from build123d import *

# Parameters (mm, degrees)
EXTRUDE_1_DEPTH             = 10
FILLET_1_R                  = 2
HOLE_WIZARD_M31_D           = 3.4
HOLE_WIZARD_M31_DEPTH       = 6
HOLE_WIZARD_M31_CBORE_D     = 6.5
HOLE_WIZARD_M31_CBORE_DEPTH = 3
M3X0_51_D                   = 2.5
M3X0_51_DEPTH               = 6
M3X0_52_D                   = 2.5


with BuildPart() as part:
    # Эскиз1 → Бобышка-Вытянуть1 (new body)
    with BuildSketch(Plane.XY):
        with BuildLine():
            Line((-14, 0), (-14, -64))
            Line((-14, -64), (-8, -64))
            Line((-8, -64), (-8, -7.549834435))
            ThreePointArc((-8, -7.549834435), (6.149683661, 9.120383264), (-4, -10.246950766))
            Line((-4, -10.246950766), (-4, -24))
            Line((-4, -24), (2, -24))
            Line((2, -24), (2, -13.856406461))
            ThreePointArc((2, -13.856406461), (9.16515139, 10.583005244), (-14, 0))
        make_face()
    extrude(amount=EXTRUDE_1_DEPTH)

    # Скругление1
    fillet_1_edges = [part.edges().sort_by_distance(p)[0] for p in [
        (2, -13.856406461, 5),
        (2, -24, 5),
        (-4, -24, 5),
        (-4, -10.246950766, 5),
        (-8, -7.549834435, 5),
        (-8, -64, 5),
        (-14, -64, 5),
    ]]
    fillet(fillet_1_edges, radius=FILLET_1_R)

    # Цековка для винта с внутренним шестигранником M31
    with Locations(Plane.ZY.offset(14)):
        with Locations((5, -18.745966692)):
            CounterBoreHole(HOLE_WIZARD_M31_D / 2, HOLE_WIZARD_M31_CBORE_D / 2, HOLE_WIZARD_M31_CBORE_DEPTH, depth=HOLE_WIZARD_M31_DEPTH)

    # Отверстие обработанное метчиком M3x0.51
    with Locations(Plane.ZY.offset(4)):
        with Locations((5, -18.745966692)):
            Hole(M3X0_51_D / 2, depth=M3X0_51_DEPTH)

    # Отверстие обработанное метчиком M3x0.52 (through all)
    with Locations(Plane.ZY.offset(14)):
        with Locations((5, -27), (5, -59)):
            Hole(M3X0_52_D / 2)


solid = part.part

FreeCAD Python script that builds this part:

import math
import FreeCAD as App
import Part
import Sketcher
from FreeCAD import Vector


def edges_at(feature, points):
    """Names of the edges that pass closest to the given points."""
    edges = feature.Shape.Edges
    near = lambda p: min(range(len(edges)), key=lambda i: edges[i].distToShape(Part.Vertex(*p))[0])
    return sorted({f"Edge{near(p) + 1}" for p in points})

doc = App.newDocument("Part")
params = doc.addObject("Spreadsheet::Sheet", "Params")
for row, (alias, value) in enumerate([
    ("sketch1_radius", "11 mm"),
    ("sketch1_radius2", "14 mm"),
    ("sketch1_width", "6 mm"),
    ("sketch1_height", "64 mm"),
    ("pad1_length", "10 mm"),
    ("fillet_radius", "2 mm"),
    ("sketch2_diameter", "3.4 mm"),
    ("hole_diameter", "3.4 mm"),
    ("hole_depth", "6 mm"),
    ("hole_cbore_diameter", "6.5 mm"),
    ("hole_cbore_depth", "3 mm"),
    ("sketch3_diameter", "2.5 mm"),
    ("hole2_diameter", "2.5 mm"),
    ("hole2_depth", "6 mm"),
    ("sketch4_diameter", "2.5 mm"),
    ("hole3_diameter", "2.5 mm"),
], start=1):
    params.set(f"A{row}", alias)
    params.set(f"B{row}", "=" + value)
    params.setAlias(f"B{row}", alias)

body = doc.addObject("PartDesign::Body", "Body")

# Sketch on XY plane
sketch1 = body.newObject("Sketcher::SketchObject", "Sketch")
sketch1.AttachmentSupport = (doc.getObject("XY_Plane"), [""])
sketch1.MapMode = "FlatFace"
sketch1.addGeometry([
    Part.LineSegment(Vector(-14, 0, 0), Vector(-14, -64, 0)),  # 0
    Part.LineSegment(Vector(-14, -64, 0), Vector(-8, -64, 0)),  # 1
    Part.LineSegment(Vector(-8, -64, 0), Vector(-8, -7.5, 0)),  # 2
    Part.ArcOfCircle(Part.Circle(Vector(0, 0, 0), Vector(0, 0, 1), 11), math.radians(-111), math.radians(223)),  # 3
    Part.LineSegment(Vector(-4, -10.2, 0), Vector(-4, -24, 0)),  # 4
    Part.LineSegment(Vector(-4, -24, 0), Vector(2, -24, 0)),  # 5
    Part.LineSegment(Vector(2, -24, 0), Vector(2, -13.9, 0)),  # 6
    Part.ArcOfCircle(Part.Circle(Vector(0, 0, 0), Vector(0, 0, 1), 14), math.radians(-82), math.radians(180)),  # 7
], False)
sketch1.addConstraint([
    Sketcher.Constraint("Coincident", 0, 2, 1, 1),
    Sketcher.Constraint("Coincident", 1, 2, 2, 1),
    Sketcher.Constraint("Coincident", 2, 2, 3, 2),
    Sketcher.Constraint("Coincident", 3, 1, 4, 1),
    Sketcher.Constraint("Coincident", 4, 2, 5, 1),
    Sketcher.Constraint("Coincident", 5, 2, 6, 1),
    Sketcher.Constraint("Coincident", 6, 2, 7, 1),
    Sketcher.Constraint("Tangent", 7, 2, 0, 1),
    Sketcher.Constraint("Vertical", 0),
    Sketcher.Constraint("Horizontal", 1),
    Sketcher.Constraint("Vertical", 2),
    Sketcher.Constraint("Vertical", 4),
    Sketcher.Constraint("Horizontal", 5),
    Sketcher.Constraint("Vertical", 6),
    Sketcher.Constraint("Coincident", 3, 3, -1, 1),
    Sketcher.Constraint("Coincident", 7, 3, -1, 1),
    Sketcher.Constraint("Equal", 1, 5),
    Sketcher.Constraint("Radius", 3, 11.0),
    Sketcher.Constraint("Radius", 7, 14.0),
    Sketcher.Constraint("DistanceX", 1, 1, 1, 2, 6.0),
    Sketcher.Constraint("DistanceY", 0, 2, 0, 1, 64.0),
    Sketcher.Constraint("DistanceX", 3, 1, -1, 1, 4.0),
    Sketcher.Constraint("DistanceY", 4, 2, -1, 1, 24.0),
])
sketch1.setExpression("Constraints[17]", "Params.sketch1_radius")
sketch1.setExpression("Constraints[18]", "Params.sketch1_radius2")
sketch1.setExpression("Constraints[19]", "Params.sketch1_width")
sketch1.setExpression("Constraints[20]", "Params.sketch1_height")
pad1 = body.newObject("PartDesign::Pad", "Pad")
pad1.Profile = sketch1
pad1.setExpression("Length", "Params.pad1_length")
doc.recompute()

fillet = body.newObject("PartDesign::Fillet", "Fillet")
fillet.Base = (pad1, edges_at(pad1, [
    (2, -13.856, 5),
    (2, -24, 5),
    (-4, -24, 5),
    (-4, -10.247, 5),
    (-8, -7.55, 5),
    (-8, -64, 5),
    (-14, -64, 5),
]))
fillet.setExpression("Radius", "Params.fillet_radius")

# Sketch on YZ plane
sketch2 = body.newObject("Sketcher::SketchObject", "Sketch001")
sketch2.AttachmentSupport = (doc.getObject("YZ_Plane"), [""])
sketch2.MapMode = "FlatFace"
sketch2.AttachmentOffset = App.Placement(Vector(0, 0, -14), App.Rotation())
sketch2.addGeometry(Part.Circle(Vector(-18.7, 5, 0), Vector(0, 0, 1), 1.7), False)
sketch2.addConstraint([
    Sketcher.Constraint("Diameter", 0, 3.4),
    Sketcher.Constraint("DistanceY", -1, 1, 0, 3, 5.0),
    Sketcher.Constraint("DistanceX", 0, 3, -1, 1, 18.745967),
])
sketch2.setExpression("Constraints[0]", "Params.sketch2_diameter")
doc.recompute()
hole = body.newObject("PartDesign::Hole", "Hole")
hole.Profile = sketch2
hole.ThreadType = "None"
hole.setExpression("Diameter", "Params.hole_diameter")
hole.DepthType = "Dimension"
hole.setExpression("Depth", "Params.hole_depth")
hole.DrillPoint = "Flat"
hole.HoleCutType = "Counterbore"
hole.setExpression("HoleCutDiameter", "Params.hole_cbore_diameter")
hole.setExpression("HoleCutDepth", "Params.hole_cbore_depth")
hole.Reversed = True

# Sketch on YZ plane
sketch3 = body.newObject("Sketcher::SketchObject", "Sketch002")
sketch3.AttachmentSupport = (doc.getObject("YZ_Plane"), [""])
sketch3.MapMode = "FlatFace"
sketch3.AttachmentOffset = App.Placement(Vector(0, 0, -4), App.Rotation())
sketch3.addGeometry(Part.Circle(Vector(-18.7, 5, 0), Vector(0, 0, 1), 1.2), False)
sketch3.addConstraint([
    Sketcher.Constraint("Diameter", 0, 2.5),
    Sketcher.Constraint("DistanceY", -1, 1, 0, 3, 5.0),
    Sketcher.Constraint("DistanceX", 0, 3, -1, 1, 18.745967),
])
sketch3.setExpression("Constraints[0]", "Params.sketch3_diameter")
doc.recompute()
hole2 = body.newObject("PartDesign::Hole", "Hole001")
hole2.Profile = sketch3
hole2.ThreadType = "None"
hole2.setExpression("Diameter", "Params.hole2_diameter")
hole2.DepthType = "Dimension"
hole2.setExpression("Depth", "Params.hole2_depth")
hole2.DrillPoint = "Flat"
hole2.Reversed = True

# Sketch on YZ plane
sketch4 = body.newObject("Sketcher::SketchObject", "Sketch003")
sketch4.AttachmentSupport = (doc.getObject("YZ_Plane"), [""])
sketch4.MapMode = "FlatFace"
sketch4.AttachmentOffset = App.Placement(Vector(0, 0, -14), App.Rotation())
sketch4.addGeometry([
    Part.Circle(Vector(-27, 5, 0), Vector(0, 0, 1), 1.2),
    Part.Circle(Vector(-59, 5, 0), Vector(0, 0, 1), 1.2),
], False)
sketch4.addConstraint([
    Sketcher.Constraint("Equal", 0, 1),
    Sketcher.Constraint("Horizontal", 0, 3, 1, 3),
    Sketcher.Constraint("Diameter", 0, 2.5),
    Sketcher.Constraint("DistanceX", 0, 3, -1, 1, 27.0),
    Sketcher.Constraint("DistanceY", -1, 1, 0, 3, 5.0),
    Sketcher.Constraint("DistanceX", 1, 3, -1, 1, 59.0),
])
sketch4.setExpression("Constraints[2]", "Params.sketch4_diameter")
doc.recompute()
hole3 = body.newObject("PartDesign::Hole", "Hole002")
hole3.Profile = sketch4
hole3.ThreadType = "None"
hole3.setExpression("Diameter", "Params.hole3_diameter")
hole3.DepthType = "ThroughAll"
hole3.Reversed = True

doc.recompute()
